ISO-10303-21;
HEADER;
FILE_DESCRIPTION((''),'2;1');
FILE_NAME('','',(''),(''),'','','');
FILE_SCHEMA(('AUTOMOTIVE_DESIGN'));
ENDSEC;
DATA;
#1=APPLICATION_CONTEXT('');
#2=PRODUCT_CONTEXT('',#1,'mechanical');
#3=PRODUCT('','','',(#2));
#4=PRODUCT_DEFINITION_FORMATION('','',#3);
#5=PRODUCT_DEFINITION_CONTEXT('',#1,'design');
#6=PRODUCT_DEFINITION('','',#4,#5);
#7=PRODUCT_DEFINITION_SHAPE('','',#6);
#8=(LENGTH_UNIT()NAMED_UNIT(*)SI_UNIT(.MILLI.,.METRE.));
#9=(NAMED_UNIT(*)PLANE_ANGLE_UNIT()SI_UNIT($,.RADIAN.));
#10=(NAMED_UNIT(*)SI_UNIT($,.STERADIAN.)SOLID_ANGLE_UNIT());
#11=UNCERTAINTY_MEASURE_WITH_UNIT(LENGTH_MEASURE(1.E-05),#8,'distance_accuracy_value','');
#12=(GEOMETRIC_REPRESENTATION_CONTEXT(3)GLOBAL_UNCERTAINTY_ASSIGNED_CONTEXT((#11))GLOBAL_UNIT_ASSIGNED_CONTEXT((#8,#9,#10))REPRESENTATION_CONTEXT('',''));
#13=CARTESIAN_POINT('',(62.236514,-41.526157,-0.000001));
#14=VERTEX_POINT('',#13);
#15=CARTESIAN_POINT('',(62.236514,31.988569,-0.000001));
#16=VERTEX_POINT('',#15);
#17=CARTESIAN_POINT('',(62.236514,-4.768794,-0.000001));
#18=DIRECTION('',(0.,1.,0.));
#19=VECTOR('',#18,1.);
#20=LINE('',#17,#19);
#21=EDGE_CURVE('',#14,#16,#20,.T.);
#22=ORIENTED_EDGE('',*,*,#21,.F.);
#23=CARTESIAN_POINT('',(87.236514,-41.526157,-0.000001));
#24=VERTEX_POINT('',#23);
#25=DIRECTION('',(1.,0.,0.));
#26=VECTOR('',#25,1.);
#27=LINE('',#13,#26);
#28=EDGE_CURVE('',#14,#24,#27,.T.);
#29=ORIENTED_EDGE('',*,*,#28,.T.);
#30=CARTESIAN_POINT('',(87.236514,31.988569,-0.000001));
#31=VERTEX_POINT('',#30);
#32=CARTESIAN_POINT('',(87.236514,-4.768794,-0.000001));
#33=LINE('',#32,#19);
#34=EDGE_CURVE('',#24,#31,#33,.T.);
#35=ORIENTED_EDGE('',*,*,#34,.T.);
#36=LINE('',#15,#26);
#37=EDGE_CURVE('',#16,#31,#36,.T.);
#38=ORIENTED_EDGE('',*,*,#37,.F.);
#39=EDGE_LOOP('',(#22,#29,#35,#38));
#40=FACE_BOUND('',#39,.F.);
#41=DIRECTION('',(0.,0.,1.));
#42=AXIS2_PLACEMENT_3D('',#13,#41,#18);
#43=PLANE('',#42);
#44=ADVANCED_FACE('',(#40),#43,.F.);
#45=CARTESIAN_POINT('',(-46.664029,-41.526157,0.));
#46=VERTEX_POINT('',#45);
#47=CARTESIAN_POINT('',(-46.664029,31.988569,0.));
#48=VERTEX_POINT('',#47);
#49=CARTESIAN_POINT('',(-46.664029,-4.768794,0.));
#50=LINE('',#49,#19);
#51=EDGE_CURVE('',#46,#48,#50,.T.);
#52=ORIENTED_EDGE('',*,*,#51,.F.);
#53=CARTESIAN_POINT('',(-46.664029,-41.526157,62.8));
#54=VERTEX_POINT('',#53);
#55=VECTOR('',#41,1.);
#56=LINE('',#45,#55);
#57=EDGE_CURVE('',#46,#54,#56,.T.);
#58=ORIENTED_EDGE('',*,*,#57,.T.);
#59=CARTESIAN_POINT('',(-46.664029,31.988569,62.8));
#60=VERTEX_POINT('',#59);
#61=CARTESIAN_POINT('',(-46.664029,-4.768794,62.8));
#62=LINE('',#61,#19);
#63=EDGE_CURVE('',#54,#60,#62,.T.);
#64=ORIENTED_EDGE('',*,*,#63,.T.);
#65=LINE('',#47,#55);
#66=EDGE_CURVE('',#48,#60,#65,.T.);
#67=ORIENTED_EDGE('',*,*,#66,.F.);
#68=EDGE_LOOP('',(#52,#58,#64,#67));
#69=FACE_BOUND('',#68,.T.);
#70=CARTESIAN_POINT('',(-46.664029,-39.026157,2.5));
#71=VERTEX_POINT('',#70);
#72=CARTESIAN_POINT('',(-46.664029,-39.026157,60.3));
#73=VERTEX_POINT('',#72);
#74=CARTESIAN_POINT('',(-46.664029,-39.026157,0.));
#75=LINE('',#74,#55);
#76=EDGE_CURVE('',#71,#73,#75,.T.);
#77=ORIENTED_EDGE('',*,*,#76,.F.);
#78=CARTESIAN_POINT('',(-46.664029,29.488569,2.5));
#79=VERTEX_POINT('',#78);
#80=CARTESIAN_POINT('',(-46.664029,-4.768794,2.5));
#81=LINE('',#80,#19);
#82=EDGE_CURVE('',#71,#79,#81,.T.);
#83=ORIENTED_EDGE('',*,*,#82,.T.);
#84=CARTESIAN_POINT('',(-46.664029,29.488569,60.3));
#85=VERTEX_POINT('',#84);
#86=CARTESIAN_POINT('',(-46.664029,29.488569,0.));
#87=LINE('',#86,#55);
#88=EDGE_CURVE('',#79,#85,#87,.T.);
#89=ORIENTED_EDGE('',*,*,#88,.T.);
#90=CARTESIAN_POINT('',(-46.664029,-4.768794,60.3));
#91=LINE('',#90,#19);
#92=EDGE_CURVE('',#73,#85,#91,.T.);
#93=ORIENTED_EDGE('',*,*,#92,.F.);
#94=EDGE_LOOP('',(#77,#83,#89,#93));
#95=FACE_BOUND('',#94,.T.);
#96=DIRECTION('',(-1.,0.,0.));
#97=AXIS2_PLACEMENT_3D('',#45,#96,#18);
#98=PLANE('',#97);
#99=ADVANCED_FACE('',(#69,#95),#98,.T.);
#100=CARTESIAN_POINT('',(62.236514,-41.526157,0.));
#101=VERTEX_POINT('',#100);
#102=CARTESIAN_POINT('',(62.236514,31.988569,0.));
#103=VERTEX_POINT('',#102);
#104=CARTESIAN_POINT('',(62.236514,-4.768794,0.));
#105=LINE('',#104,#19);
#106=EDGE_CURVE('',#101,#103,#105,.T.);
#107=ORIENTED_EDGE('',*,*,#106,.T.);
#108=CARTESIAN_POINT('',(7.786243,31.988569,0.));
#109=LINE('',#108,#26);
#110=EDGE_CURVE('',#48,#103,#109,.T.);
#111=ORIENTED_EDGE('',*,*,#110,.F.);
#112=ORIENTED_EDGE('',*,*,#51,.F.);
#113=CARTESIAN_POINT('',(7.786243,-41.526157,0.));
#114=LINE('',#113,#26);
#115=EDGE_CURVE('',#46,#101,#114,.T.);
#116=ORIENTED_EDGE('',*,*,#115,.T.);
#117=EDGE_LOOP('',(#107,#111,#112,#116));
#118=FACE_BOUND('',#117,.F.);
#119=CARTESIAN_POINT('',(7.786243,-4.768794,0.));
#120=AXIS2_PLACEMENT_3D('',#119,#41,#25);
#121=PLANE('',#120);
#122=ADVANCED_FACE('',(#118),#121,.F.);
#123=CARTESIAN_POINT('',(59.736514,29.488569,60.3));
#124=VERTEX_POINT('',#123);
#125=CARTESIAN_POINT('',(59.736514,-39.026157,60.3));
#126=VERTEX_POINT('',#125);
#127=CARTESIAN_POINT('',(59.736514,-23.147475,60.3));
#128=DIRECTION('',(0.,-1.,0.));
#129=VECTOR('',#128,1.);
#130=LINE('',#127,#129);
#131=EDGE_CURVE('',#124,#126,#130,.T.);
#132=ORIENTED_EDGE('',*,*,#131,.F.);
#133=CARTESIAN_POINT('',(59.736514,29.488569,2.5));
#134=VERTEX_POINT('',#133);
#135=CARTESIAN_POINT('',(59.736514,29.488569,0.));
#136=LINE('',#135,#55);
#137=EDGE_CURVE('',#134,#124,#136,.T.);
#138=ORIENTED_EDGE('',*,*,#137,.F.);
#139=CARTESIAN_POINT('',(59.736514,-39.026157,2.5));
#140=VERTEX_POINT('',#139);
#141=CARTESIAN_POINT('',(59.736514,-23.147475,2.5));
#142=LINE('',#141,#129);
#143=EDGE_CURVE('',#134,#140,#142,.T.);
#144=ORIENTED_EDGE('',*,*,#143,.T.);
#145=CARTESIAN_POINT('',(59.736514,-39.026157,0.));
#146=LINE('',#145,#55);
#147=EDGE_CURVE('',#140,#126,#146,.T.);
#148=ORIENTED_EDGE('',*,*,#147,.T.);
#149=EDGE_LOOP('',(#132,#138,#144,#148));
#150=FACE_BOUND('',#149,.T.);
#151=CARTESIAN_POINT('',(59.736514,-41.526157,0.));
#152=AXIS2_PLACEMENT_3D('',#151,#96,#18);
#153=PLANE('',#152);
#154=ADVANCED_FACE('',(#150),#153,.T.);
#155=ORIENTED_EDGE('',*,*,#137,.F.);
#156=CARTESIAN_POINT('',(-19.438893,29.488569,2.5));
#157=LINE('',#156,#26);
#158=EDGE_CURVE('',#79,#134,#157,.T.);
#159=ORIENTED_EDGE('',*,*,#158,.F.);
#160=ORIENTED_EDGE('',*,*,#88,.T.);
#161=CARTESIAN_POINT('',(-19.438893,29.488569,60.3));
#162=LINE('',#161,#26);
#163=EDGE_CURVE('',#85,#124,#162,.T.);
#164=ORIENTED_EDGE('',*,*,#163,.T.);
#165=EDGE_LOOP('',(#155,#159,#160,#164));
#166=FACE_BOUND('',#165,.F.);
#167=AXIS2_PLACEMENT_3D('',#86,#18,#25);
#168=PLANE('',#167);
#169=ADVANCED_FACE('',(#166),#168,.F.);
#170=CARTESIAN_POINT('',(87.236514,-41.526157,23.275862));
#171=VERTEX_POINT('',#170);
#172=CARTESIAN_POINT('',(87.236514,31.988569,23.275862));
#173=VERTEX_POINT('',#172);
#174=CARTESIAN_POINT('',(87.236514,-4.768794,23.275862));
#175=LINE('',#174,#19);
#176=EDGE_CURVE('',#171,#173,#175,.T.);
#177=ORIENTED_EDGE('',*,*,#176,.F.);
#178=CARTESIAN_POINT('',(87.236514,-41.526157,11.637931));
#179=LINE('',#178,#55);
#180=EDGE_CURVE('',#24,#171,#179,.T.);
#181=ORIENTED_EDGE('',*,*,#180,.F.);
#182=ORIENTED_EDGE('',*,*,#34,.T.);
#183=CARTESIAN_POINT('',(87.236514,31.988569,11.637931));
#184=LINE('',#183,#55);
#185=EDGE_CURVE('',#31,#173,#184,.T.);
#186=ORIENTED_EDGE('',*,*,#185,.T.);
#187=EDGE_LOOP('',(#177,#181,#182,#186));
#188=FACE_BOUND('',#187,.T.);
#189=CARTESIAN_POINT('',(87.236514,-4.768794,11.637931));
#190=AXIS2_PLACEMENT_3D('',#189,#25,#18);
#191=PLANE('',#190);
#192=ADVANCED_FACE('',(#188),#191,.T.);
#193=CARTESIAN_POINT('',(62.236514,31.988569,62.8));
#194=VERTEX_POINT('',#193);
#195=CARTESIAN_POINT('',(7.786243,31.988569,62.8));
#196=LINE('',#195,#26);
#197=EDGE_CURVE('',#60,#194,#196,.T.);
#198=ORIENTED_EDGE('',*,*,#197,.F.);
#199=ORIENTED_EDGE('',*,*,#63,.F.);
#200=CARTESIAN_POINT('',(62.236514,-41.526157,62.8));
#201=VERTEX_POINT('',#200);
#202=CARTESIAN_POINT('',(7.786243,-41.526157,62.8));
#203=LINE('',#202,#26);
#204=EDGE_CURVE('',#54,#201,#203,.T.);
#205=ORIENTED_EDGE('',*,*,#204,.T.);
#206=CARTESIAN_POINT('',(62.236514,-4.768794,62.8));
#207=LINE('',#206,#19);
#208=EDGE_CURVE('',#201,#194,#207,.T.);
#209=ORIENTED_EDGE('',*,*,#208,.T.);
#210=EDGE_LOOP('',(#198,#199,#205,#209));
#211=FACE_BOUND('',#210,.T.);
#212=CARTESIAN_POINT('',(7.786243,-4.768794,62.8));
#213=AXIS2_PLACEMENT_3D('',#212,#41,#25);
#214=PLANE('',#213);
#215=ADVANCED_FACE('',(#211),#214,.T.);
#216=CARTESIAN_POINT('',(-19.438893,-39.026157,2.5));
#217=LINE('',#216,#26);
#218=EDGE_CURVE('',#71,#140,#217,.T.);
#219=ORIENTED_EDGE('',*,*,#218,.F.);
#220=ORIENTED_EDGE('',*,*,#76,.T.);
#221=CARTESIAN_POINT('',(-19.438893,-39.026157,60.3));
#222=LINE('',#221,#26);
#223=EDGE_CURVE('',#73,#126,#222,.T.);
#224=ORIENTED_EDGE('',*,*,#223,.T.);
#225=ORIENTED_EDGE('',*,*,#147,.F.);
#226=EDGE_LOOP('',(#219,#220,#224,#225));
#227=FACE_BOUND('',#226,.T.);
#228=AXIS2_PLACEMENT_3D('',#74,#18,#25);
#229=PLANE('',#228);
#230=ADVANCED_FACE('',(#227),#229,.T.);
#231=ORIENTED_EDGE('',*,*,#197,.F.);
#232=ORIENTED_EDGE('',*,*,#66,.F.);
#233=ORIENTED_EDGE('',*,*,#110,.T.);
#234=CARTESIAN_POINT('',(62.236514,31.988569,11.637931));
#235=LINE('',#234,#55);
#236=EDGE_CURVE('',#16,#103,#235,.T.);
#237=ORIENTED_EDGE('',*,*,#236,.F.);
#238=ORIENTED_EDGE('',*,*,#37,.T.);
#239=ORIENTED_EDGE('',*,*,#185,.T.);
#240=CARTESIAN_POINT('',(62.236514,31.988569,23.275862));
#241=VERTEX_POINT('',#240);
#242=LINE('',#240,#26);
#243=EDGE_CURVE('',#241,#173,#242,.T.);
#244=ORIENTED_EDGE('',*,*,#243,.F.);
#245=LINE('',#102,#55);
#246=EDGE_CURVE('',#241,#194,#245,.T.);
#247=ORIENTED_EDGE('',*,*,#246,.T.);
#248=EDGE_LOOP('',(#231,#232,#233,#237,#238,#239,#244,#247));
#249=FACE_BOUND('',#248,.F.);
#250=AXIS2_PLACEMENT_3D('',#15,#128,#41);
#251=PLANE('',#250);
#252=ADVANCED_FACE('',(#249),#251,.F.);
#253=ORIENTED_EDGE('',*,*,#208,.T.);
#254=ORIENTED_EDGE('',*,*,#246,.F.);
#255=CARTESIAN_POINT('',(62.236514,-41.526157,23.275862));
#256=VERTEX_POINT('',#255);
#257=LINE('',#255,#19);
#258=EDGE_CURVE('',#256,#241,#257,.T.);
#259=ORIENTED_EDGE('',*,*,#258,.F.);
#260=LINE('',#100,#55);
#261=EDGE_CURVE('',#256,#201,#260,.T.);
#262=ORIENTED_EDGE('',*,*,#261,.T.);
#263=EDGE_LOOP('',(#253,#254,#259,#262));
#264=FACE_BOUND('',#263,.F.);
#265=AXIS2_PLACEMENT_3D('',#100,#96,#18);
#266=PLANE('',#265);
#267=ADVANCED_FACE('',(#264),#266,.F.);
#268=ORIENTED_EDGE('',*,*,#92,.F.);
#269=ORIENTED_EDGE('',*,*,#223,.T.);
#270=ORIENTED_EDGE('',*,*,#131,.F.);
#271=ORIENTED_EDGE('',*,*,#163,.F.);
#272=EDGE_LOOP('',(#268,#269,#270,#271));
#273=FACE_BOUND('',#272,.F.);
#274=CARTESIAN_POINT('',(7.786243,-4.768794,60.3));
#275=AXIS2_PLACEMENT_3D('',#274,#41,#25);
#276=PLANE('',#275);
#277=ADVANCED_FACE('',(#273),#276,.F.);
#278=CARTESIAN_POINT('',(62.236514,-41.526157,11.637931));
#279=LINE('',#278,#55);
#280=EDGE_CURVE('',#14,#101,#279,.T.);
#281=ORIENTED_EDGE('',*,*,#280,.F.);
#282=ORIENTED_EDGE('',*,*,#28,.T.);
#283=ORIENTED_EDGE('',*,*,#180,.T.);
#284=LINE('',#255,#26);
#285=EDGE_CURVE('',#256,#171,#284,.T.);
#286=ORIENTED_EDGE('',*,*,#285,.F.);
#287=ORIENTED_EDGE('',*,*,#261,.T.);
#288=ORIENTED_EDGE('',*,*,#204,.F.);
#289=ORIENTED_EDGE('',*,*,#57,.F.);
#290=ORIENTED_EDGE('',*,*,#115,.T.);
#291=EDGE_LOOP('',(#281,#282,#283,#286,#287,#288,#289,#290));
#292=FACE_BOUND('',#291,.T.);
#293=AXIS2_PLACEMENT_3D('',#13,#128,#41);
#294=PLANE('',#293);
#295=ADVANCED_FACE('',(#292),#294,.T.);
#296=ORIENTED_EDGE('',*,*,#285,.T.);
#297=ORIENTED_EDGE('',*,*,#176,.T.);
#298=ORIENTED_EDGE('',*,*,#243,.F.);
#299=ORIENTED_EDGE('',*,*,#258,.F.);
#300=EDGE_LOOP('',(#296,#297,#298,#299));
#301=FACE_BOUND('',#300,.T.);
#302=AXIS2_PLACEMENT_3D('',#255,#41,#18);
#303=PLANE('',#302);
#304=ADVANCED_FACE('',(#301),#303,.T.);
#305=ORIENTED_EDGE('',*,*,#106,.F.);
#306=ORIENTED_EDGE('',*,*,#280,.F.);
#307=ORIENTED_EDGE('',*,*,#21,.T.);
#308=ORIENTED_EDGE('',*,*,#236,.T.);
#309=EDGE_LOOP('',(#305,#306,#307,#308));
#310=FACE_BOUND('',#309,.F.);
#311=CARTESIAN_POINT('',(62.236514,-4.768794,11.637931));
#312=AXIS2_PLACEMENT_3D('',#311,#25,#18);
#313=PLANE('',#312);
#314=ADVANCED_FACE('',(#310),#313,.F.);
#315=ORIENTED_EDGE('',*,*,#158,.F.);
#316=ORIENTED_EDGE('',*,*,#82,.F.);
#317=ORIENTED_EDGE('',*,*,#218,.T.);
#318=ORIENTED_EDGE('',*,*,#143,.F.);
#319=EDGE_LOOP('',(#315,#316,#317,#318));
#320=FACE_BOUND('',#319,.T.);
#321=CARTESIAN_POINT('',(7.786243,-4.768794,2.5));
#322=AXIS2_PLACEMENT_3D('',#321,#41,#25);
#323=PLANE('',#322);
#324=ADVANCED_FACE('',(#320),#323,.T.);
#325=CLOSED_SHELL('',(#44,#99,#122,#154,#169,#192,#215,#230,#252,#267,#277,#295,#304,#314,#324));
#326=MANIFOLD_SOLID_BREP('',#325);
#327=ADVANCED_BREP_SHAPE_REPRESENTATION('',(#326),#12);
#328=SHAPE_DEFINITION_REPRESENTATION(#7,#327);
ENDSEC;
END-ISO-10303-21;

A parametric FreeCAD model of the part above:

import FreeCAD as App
import Part
import Sketcher


def faces_at(feature, points):
    """Names of the faces that lie closest to the given points."""
    faces = feature.Shape.Faces
    near = lambda p: min(range(len(faces)), key=lambda i: faces[i].distToShape(Part.Vertex(*p))[0])
    return sorted({f"Face{near(p) + 1}" for p in points})

doc = App.newDocument("Part")
body = doc.addObject("PartDesign::Body", "Body")

# Sketch on XY plane
sketch1 = doc.addObject("Sketcher::SketchObject", "Sketch")
body.addObject(sketch1)
sketch1.AttachmentSupport = (doc.XY_Plane, [""])
sketch1.MapMode = "FlatFace"
sketch1.addGeometry([
    Part.LineSegment(App.Vector(-47, 32, 0), App.Vector(-47, -42, 0)),
    Part.LineSegment(App.Vector(-47, -42, 0), App.Vector(62, -42, 0)),
    Part.LineSegment(App.Vector(62, -42, 0), App.Vector(62, 32, 0)),
    Part.LineSegment(App.Vector(62, 32, 0), App.Vector(-47, 32, 0)),
], False)
sketch1.addConstraint([
    Sketcher.Constraint("Coincident", 0, 2, 1, 1),
    Sketcher.Constraint("Coincident", 1, 2, 2, 1),
    Sketcher.Constraint("Coincident", 2, 2, 3, 1),
    Sketcher.Constraint("Coincident", 3, 2, 0, 1),
    Sketcher.Constraint("Vertical", 0),
    Sketcher.Constraint("Horizontal", 1),
    Sketcher.Constraint("Vertical", 2),
    Sketcher.Constraint("Horizontal", 3),
    Sketcher.Constraint("DistanceX", 1, 1, 1, 2, 108.900543),
    Sketcher.Constraint("DistanceY", 0, 2, 0, 1, 73.514726),
    Sketcher.Constraint("DistanceX", 0, 2, -1, 1, 46.664029),
    Sketcher.Constraint("DistanceY", -1, 1, 2, 2, 31.988569),
])
pad1 = doc.addObject("PartDesign::Pad", "Pad")
body.addObject(pad1)
pad1.Profile = sketch1
pad1.Length = 62.8
doc.recompute()

thickness = doc.addObject("PartDesign::Thickness", "Thickness")
body.addObject(thickness)
thickness.Base = (pad1, faces_at(pad1, [(-46.664, -4.769, 31.4)]))
thickness.Value = 2.5
thickness.Reversed = True
thickness.Join = "Arc"

# Sketch on YZ plane
sketch2 = doc.addObject("Sketcher::SketchObject", "Sketch001")
body.addObject(sketch2)
sketch2.AttachmentSupport = (doc.YZ_Plane, [""])
sketch2.MapMode = "FlatFace"
sketch2.AttachmentOffset = App.Placement(App.Vector(0, 0, 62.236514), App.Rotation())
sketch2.addGeometry([
    Part.LineSegment(App.Vector(-42, 23, 0), App.Vector(-42, 0, 0)),
    Part.LineSegment(App.Vector(-42, 0, 0), App.Vector(32, 0, 0)),
    Part.LineSegment(App.Vector(32, 0, 0), App.Vector(32, 23, 0)),
    Part.LineSegment(App.Vector(32, 23, 0), App.Vector(-42, 23, 0)),
], False)
sketch2.addConstraint([
    Sketcher.Constraint("Coincident", 0, 2, 1, 1),
    Sketcher.Constraint("Coincident", 1, 2, 2, 1),
    Sketcher.Constraint("Coincident", 2, 2, 3, 1),
    Sketcher.Constraint("Coincident", 3, 2, 0, 1),
    Sketcher.Constraint("Vertical", 0),
    Sketcher.Constraint("Horizontal", 1),
    Sketcher.Constraint("Vertical", 2),
    Sketcher.Constraint("Horizontal", 3),
    Sketcher.Constraint("PointOnObject", 0, 2, -1),
    Sketcher.Constraint("DistanceX", 1, 1, 1, 2, 73.514726),
    Sketcher.Constraint("DistanceY", 0, 2, 0, 1, 23.275863),
    Sketcher.Constraint("DistanceX", -1, 1, 1, 2, 31.988569),
])
pad2 = doc.addObject("PartDesign::Pad", "Pad001")
body.addObject(pad2)
pad2.Profile = sketch2
pad2.Length = 25

# Sketch on YZ plane
sketch3 = doc.addObject("Sketcher::SketchObject", "Sketch002")
body.addObject(sketch3)
sketch3.AttachmentSupport = (doc.YZ_Plane, [""])
sketch3.MapMode = "FlatFace"
sketch3.AttachmentOffset = App.Placement(App.Vector(0, 0, 59.736514), App.Rotation())
sketch3.addGeometry([
    Part.LineSegment(App.Vector(17, 51, 0), App.Vector(17, 44, 0)),  # 0
    Part.LineSegment(App.Vector(17, 44, 0), App.Vector(5, 44, 0)),  # 1
    Part.LineSegment(App.Vector(5, 44, 0), App.Vector(5, 51, 0)),  # 2
    Part.LineSegment(App.Vector(5, 51, 0), App.Vector(17, 51, 0)),  # 3
    Part.LineSegment(App.Vector(-5, 51, 0), App.Vector(-5, 44, 0)),  # 4
    Part.LineSegment(App.Vector(-5, 44, 0), App.Vector(-17, 44, 0)),  # 5
    Part.LineSegment(App.Vector(-17, 44, 0), App.Vector(-17, 51, 0)),  # 6
    Part.LineSegment(App.Vector(-17, 51, 0), App.Vector(-5, 51, 0)),  # 7
], False)
sketch3.addConstraint([
    Sketcher.Constraint("Coincident", 0, 2, 1, 1),
    Sketcher.Constraint("Coincident", 1, 2, 2, 1),
    Sketcher.Constraint("Coincident", 2, 2, 3, 1),
    Sketcher.Constraint("Coincident", 3, 2, 0, 1),
    Sketcher.Constraint("Coincident", 4, 2, 5, 1),
    Sketcher.Constraint("Coincident", 5, 2, 6, 1),
    Sketcher.Constraint("Coincident", 6, 2, 7, 1),
    Sketcher.Constraint("Coincident", 7, 2, 4, 1),
    Sketcher.Constraint("Vertical", 0),
    Sketcher.Constraint("Horizontal", 1),
    Sketcher.Constraint("Vertical", 2),
    Sketcher.Constraint("Horizontal", 3),
    Sketcher.Constraint("Vertical", 4),
    Sketcher.Constraint("Horizontal", 5),
    Sketcher.Constraint("Vertical", 6),
    Sketcher.Constraint("Horizontal", 7),
    Sketcher.Constraint("Symmetric", 1, 2, 4, 2, -2),
    Sketcher.Constraint("Symmetric", 3, 2, 6, 2, -2),
    Sketcher.Constraint("DistanceX", 1, 2, 1, 1, 12.069764),
    Sketcher.Constraint("DistanceY", 0, 2, 0, 1, 6.524198),
    Sketcher.Constraint("DistanceX", -1, 1, 0, 2, 17.17077),
    Sketcher.Constraint("DistanceY", -1, 1, 2, 2, 50.945591),
])
pad3 = doc.addObject("PartDesign::Pad", "Pad002")
body.addObject(pad3)
pad3.Profile = sketch3
pad3.Length = 0.9

doc.recompute()
